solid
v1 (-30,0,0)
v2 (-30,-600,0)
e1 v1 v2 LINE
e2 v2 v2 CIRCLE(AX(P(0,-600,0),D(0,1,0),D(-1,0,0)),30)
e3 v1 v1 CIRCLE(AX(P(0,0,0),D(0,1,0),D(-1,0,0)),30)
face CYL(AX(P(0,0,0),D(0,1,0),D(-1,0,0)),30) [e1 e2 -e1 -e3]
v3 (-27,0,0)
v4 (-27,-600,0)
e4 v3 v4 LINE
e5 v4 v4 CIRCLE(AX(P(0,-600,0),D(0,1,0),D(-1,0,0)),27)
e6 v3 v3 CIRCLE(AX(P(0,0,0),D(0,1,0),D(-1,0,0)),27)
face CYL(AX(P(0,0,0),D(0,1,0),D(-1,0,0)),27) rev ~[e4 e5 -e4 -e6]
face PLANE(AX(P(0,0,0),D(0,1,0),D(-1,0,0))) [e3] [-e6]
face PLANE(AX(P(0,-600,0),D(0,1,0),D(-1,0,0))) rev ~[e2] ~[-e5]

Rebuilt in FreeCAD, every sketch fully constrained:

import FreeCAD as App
import Part
import Sketcher
from FreeCAD import Vector

doc = App.newDocument("Part")
body = doc.addObject("PartDesign::Body", "Body")

# Sketch on XZ plane
sketch1 = body.newObject("Sketcher::SketchObject", "Sketch")
sketch1.AttachmentSupport = (doc.getObject("XZ_Plane"), [""])
sketch1.MapMode = "FlatFace"
sketch1.addGeometry(Part.Circle(Vector(0, 0, 0), Vector(0, 0, 1), 30), False)
sketch1.addGeometry(Part.Circle(Vector(0, 0, 0), Vector(0, 0, 1), 27), False)
sketch1.addConstraint(Sketcher.Constraint("Coincident", 0, 3, -1, 1))
sketch1.addConstraint(Sketcher.Constraint("Coincident", 1, 3, -1, 1))
sketch1.addConstraint(Sketcher.Constraint("Diameter", 0, 60.0))
sketch1.addConstraint(Sketcher.Constraint("Diameter", 1, 54.0))
pad1 = body.newObject("PartDesign::Pad", "Pad")
pad1.Profile = sketch1
pad1.Length = 600

doc.recompute()
